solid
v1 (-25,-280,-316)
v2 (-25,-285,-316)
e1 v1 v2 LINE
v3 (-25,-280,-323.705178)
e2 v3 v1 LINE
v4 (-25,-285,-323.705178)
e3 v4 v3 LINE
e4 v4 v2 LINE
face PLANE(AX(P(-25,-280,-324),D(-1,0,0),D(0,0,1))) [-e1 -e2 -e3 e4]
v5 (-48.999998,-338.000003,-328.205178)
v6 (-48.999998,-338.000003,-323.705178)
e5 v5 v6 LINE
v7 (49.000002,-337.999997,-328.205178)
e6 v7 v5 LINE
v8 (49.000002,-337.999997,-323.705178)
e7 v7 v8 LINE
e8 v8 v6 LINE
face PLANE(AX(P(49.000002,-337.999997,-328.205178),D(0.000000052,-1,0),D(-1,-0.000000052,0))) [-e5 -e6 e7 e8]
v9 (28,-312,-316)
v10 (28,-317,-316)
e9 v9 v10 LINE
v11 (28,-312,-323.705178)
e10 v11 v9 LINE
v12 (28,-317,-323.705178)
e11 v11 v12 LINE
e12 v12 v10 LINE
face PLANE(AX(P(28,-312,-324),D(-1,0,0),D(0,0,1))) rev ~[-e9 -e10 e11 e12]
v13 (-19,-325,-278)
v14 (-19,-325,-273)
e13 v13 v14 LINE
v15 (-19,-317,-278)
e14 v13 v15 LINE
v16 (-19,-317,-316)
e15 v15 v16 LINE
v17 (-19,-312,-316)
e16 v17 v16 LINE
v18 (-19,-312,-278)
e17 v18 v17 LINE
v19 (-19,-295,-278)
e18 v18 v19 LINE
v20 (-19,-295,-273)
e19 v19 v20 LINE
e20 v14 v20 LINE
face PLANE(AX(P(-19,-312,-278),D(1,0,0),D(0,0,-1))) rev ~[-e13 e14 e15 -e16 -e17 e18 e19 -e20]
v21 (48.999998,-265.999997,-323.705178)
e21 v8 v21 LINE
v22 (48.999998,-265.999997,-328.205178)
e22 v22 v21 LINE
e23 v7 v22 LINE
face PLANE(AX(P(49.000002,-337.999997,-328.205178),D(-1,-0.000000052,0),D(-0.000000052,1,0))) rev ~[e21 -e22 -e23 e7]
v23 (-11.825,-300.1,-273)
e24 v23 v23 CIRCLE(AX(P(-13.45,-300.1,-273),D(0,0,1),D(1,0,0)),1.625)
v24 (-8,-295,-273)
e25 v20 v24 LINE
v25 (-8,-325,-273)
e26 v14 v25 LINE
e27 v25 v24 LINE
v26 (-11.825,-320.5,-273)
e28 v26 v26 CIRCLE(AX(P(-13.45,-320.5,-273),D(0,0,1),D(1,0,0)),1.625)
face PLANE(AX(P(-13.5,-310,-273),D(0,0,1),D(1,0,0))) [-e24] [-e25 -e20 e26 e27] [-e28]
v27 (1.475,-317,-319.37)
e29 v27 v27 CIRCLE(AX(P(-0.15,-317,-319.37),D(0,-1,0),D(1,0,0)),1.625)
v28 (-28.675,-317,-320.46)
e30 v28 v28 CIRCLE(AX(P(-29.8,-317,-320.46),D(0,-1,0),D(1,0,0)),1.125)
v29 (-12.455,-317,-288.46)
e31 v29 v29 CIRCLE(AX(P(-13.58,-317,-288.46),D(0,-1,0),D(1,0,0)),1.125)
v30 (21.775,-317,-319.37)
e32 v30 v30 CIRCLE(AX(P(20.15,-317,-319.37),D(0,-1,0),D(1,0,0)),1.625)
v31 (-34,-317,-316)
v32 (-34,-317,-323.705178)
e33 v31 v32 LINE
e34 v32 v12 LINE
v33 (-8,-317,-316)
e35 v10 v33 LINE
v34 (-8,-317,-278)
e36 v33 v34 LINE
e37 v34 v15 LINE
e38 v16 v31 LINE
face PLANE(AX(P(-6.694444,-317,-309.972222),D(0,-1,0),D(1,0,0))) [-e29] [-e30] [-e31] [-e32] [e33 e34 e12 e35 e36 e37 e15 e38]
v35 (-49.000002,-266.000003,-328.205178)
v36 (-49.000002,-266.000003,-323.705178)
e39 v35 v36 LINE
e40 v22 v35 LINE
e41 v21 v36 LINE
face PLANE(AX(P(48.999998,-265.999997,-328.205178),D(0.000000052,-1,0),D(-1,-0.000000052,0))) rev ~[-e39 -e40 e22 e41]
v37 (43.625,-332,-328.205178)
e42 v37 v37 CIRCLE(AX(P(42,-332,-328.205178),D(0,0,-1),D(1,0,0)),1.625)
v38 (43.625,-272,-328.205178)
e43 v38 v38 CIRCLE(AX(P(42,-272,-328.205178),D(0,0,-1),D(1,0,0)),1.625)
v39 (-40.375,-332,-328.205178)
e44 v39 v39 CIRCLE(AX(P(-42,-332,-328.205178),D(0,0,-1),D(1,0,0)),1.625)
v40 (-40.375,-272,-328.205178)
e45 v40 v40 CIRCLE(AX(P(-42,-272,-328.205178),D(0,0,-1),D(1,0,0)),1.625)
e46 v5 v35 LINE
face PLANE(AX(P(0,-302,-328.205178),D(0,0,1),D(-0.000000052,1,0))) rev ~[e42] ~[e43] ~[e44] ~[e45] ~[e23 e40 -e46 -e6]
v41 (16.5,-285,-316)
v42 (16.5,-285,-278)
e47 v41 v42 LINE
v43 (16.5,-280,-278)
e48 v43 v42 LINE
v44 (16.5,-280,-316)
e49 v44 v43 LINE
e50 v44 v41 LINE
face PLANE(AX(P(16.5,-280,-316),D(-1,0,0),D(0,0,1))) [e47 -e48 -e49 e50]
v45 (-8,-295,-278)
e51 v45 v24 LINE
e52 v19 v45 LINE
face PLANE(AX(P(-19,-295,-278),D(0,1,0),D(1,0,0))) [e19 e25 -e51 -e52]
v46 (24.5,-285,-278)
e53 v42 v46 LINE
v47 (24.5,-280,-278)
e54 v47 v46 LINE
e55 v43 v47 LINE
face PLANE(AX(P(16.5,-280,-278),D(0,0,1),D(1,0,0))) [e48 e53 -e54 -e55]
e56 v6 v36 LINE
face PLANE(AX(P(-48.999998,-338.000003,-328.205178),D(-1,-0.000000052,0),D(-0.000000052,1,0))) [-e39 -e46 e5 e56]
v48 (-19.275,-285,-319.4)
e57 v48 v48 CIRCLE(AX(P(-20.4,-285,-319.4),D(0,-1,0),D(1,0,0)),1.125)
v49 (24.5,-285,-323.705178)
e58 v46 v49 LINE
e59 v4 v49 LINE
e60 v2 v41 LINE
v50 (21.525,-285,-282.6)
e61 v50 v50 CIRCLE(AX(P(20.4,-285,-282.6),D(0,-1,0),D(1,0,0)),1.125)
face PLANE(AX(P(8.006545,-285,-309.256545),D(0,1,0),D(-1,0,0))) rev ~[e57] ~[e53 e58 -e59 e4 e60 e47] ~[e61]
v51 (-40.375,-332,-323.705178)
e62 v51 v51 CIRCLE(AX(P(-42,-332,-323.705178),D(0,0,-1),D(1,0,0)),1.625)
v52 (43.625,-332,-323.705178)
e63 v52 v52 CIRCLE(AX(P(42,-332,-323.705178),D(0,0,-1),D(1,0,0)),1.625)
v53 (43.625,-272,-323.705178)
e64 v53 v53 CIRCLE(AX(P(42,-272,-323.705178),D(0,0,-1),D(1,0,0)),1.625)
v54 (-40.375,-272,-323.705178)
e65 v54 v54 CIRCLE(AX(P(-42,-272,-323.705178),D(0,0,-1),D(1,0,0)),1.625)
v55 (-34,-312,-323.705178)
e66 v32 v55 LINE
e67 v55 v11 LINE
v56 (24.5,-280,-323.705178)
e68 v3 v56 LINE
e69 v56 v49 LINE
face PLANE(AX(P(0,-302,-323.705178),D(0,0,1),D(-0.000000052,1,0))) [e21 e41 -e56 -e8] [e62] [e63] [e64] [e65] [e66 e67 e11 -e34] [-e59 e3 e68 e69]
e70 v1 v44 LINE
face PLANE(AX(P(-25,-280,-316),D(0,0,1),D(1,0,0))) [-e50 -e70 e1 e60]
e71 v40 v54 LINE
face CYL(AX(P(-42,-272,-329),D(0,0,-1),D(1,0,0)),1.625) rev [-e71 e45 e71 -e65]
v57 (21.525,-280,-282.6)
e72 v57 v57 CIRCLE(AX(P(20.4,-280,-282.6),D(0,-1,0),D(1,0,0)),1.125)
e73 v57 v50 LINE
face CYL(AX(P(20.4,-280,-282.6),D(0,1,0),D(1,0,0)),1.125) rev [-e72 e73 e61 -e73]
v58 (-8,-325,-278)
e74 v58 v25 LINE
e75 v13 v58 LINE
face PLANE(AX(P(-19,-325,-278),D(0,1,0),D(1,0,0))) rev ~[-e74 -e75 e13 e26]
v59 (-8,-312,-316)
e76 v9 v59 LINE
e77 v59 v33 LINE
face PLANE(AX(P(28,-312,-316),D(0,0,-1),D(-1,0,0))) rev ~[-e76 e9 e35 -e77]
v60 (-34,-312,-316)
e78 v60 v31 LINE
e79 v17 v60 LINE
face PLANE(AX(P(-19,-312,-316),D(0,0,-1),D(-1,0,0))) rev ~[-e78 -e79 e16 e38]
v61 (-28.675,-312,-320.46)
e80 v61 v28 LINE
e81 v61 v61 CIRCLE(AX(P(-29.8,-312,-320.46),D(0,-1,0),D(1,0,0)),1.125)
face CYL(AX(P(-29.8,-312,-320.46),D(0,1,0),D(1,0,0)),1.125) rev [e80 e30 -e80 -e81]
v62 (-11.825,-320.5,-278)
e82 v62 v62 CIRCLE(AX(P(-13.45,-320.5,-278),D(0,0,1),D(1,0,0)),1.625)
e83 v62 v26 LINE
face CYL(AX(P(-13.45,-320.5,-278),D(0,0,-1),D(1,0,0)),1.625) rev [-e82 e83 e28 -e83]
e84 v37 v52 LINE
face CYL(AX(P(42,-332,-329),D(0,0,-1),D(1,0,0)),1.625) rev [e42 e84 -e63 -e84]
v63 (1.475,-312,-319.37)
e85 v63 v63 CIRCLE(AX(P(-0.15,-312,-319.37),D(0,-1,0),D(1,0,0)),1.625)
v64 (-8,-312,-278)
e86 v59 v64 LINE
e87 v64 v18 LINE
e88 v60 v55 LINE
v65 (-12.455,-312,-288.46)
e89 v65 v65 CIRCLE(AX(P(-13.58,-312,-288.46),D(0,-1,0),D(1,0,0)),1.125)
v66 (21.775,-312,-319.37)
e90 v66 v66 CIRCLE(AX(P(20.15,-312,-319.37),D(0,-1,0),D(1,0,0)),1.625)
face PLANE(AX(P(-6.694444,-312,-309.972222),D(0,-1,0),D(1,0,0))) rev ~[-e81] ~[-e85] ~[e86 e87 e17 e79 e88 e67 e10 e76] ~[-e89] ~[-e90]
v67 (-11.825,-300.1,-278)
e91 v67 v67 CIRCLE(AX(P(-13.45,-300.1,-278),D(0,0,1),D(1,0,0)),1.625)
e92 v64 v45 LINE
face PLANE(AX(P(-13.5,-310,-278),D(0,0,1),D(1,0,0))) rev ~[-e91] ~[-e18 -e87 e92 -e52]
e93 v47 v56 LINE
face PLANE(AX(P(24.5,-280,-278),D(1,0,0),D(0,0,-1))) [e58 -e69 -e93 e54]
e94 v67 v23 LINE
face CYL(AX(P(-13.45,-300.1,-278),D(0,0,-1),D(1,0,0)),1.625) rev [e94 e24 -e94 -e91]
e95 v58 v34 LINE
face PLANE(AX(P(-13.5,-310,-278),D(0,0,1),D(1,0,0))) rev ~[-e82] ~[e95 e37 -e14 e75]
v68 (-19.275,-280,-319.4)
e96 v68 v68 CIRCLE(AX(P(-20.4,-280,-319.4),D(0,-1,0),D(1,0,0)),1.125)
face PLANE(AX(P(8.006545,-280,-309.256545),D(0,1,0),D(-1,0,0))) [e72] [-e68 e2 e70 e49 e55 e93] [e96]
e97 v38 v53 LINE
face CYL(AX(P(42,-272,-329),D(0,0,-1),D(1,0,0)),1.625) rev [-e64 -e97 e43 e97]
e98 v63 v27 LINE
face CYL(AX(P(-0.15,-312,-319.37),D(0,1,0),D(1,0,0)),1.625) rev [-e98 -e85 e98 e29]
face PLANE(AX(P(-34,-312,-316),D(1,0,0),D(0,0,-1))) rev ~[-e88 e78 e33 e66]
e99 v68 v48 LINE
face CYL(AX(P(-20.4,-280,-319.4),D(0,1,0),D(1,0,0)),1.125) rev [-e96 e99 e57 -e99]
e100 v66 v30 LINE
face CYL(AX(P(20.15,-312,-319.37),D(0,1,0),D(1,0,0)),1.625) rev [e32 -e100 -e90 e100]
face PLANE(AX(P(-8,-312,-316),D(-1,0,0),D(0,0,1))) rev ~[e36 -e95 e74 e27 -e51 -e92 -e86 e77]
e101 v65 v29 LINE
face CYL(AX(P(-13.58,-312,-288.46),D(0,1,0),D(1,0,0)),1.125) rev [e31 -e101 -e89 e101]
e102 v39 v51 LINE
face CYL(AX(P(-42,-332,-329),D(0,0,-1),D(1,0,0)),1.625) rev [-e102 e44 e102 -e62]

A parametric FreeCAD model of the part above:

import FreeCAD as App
import Part
import Sketcher
from FreeCAD import Vector
Q = App.Units.Quantity


def add_polygon(sketch, points):
    """Adds a closed chain of lines whose ends are joined by coincident constraints."""
    first, n = sketch.GeometryCount, len(points)
    for a, b in zip(points, points[1:] + points[:1]):
        sketch.addGeometry(Part.LineSegment(App.Vector(*a, 0), App.Vector(*b, 0)), False)
    for i in range(n):
        sketch.addConstraint(Sketcher.Constraint("Coincident", first + i, 2, first + (i + 1) % n, 1))

doc = App.newDocument("Part")
params = doc.addObject("Spreadsheet::Sheet", "Params")
for row, (alias, value) in enumerate([
    ("sketch1_diameter", "3.25 mm"),
    ("pad1_length", "20 mm"),
    ("sketch2_diameter", "3.25 mm"),
    ("sketch2_width", "11 mm"),
    ("sketch2_height", "30 mm"),
    ("pad2_length", "5 mm"),
    ("sketch3_width", "72 mm"),
    ("sketch3_height", "98 mm"),
    ("pad3_length", "4.5 mm"),
    ("sketch4_diameter", "2.25 mm"),
    ("sketch4_diameter2", "3.25 mm"),
    ("sketch4_width", "36 mm"),
    ("sketch4_width2", "11 mm"),
    ("sketch4_width3", "15 mm"),
    ("pad4_length", "5 mm"),
    ("sketch5_diameter", "2.25 mm"),
    ("sketch5_width", "8 mm"),
    ("sketch5_height", "46 mm"),
    ("sketch5_width2", "49.5 mm"),
    ("pad5_length", "5 mm"),
], start=1):
    params.set(f"A{row}", alias)
    params.set(f"B{row}", "=" + value)
    params.setAlias(f"B{row}", alias)

body = doc.addObject("PartDesign::Body", "Body")
body.AllowCompound = True

# Sketch on XY plane
sketch1 = body.newObject("Sketcher::SketchObject", "Sketch")
sketch1.AttachmentSupport = (doc.getObject("XY_Plane"), [""])
sketch1.MapMode = "FlatFace"
sketch1.addGeometry([
    Part.Circle(Vector(-42, -332, 0), Vector(0, 0, 1), 1.6),
    Part.Circle(Vector(42, -332, 0), Vector(0, 0, 1), 1.6),
    Part.Circle(Vector(42, -272, 0), Vector(0, 0, 1), 1.6),
    Part.Circle(Vector(-42, -272, 0), Vector(0, 0, 1), 1.6),
], False)
sketch1.addConstraint([
    Sketcher.Constraint("Equal", 0, 1),
    Sketcher.Constraint("Equal", 1, 2),
    Sketcher.Constraint("Equal", 2, 3),
    Sketcher.Constraint("Symmetric", 0, 3, 1, 3, -2),
    Sketcher.Constraint("Symmetric", 2, 3, 3, 3, -2),
    Sketcher.Constraint("Vertical", 1, 3, 2, 3),
    Sketcher.Constraint("Diameter", 0, Q("3.25 mm")),
    Sketcher.Constraint("DistanceX", 0, 3, -1, 1, Q("42 mm")),
    Sketcher.Constraint("DistanceY", 0, 3, -1, 1, Q("332 mm")),
    Sketcher.Constraint("DistanceY", 2, 3, -1, 1, Q("272 mm")),
])
sketch1.setExpression("Constraints[6]", "Params.sketch1_diameter")
pad1 = body.newObject("PartDesign::Pad", "Pad")
pad1.Profile = sketch1
pad1.setExpression("Length", "Params.pad1_length")
body2 = doc.addObject("PartDesign::Body", "Body001")
body2.AllowCompound = True
doc.recompute()

body.Placement = App.Placement(Vector(0, 0, -329), App.Rotation(Vector(0, 0, 1), 0))
boolean = body2.newObject("PartDesign::Boolean", "Boolean")
boolean.Type = "Fuse"
boolean.addObjects([body])
body3 = doc.addObject("PartDesign::Body", "Body002")

# Sketch on XY plane
sketch2 = body3.newObject("Sketcher::SketchObject", "Sketch001")
sketch2.AttachmentSupport = (doc.getObject("XY_Plane002"), [""])
sketch2.MapMode = "FlatFace"
add_polygon(sketch2, [(-19, -295), (-19, -325), (-8, -325), (-8, -295)])  # lines 0-3
sketch2.addGeometry(Part.Circle(Vector(-13.4, -320.5, 0), Vector(0, 0, 1), 1.6), False)  # 4
sketch2.addGeometry(Part.Circle(Vector(-13.4, -300.1, 0), Vector(0, 0, 1), 1.6), False)  # 5
sketch2.addConstraint([
    Sketcher.Constraint("Vertical", 0),
    Sketcher.Constraint("Horizontal", 1),
    Sketcher.Constraint("Vertical", 2),
    Sketcher.Constraint("Horizontal", 3),
    Sketcher.Constraint("Equal", 4, 5),
    Sketcher.Constraint("Vertical", 4, 3, 5, 3),
    Sketcher.Constraint("Diameter", 4, Q("3.25 mm")),
    Sketcher.Constraint("DistanceX", 1, 1, 1, 2, Q("11 mm")),
    Sketcher.Constraint("DistanceY", 0, 2, 0, 1, Q("30 mm")),
    Sketcher.Constraint("DistanceX", 0, 2, -1, 1, Q("19 mm")),
    Sketcher.Constraint("DistanceY", 0, 2, -1, 1, Q("325 mm")),
    Sketcher.Constraint("DistanceY", 4, 3, -1, 1, Q("320.5 mm")),
    Sketcher.Constraint("DistanceY", 5, 3, -1, 1, Q("300.1 mm")),
    Sketcher.Constraint("DistanceX", 4, 3, -1, 1, Q("13.45 mm")),
])
sketch2.setExpression("Constraints[10]", "Params.sketch2_diameter")
sketch2.setExpression("Constraints[11]", "Params.sketch2_width")
sketch2.setExpression("Constraints[12]", "Params.sketch2_height")
pad2 = body3.newObject("PartDesign::Pad", "Pad001")
pad2.Profile = sketch2
pad2.setExpression("Length", "Params.pad2_length")
body4 = doc.addObject("PartDesign::Body", "Body003")
doc.recompute()

body3.Placement = App.Placement(Vector(0, 0, -278), App.Rotation(Vector(0, 0, 1), 0))
boolean2 = body4.newObject("PartDesign::Boolean", "Boolean001")
boolean2.Type = "Fuse"
boolean2.addObjects([body3])
body5 = doc.addObject("PartDesign::Body", "Body004")

# Sketch on XY plane
sketch3 = body5.newObject("Sketcher::SketchObject", "Sketch002")
sketch3.AttachmentSupport = (doc.getObject("XY_Plane004"), [""])
sketch3.MapMode = "FlatFace"
add_polygon(sketch3, [(-36, 49), (-36, -49), (36, -49), (36, 49)])  # lines 0-3
sketch3.addConstraint([
    Sketcher.Constraint("Vertical", 0),
    Sketcher.Constraint("Horizontal", 1),
    Sketcher.Constraint("Vertical", 2),
    Sketcher.Constraint("Horizontal", 3),
    Sketcher.Constraint("Symmetric", 0, 2, 2, 2, -1, 1),
    Sketcher.Constraint("DistanceX", 1, 1, 1, 2, Q("72 mm")),
    Sketcher.Constraint("DistanceY", 0, 2, 0, 1, Q("98 mm")),
])
sketch3.setExpression("Constraints[9]", "Params.sketch3_width")
sketch3.setExpression("Constraints[10]", "Params.sketch3_height")
pad3 = body5.newObject("PartDesign::Pad", "Pad002")
pad3.Profile = sketch3
pad3.setExpression("Length", "Params.pad3_length")
body6 = doc.addObject("PartDesign::Body", "Body005")
doc.recompute()

body5.Placement = App.Placement(Vector(0, 0, 0), App.Rotation(Vector(0, 0, 1), 0))
boolean3 = body6.newObject("PartDesign::Boolean", "Boolean002")
boolean3.Type = "Fuse"
boolean3.addObjects([body5])
body7 = doc.addObject("PartDesign::Body", "Body006")
doc.recompute()

body6.Placement = App.Placement(Vector(0, 0, 0), App.Rotation(Vector(0, 0, 1), 0))
boolean4 = body7.newObject("PartDesign::Boolean", "Boolean003")
boolean4.Type = "Fuse"
boolean4.addObjects([body6])
body8 = doc.addObject("PartDesign::Body", "Body007")
doc.recompute()

body7.Placement = App.Placement(Vector(0, -302, -283.455178), App.Rotation(Vector(0, 0, 1), 90.000003))
boolean5 = body8.newObject("PartDesign::Boolean", "Boolean004")
boolean5.Type = "Fuse"
boolean5.addObjects([body7])
body9 = doc.addObject("PartDesign::Body", "Body008")
doc.recompute()

body8.Placement = App.Placement(Vector(0, 0, -44.75), App.Rotation(Vector(0, 0, 1), 0))
boolean6 = body9.newObject("PartDesign::Boolean", "Boolean005")
boolean6.Type = "Fuse"
boolean6.addObjects([body8])
body10 = doc.addObject("PartDesign::Body", "Body009")

# Sketch on XZ plane
sketch4 = body10.newObject("Sketcher::SketchObject", "Sketch003")
sketch4.AttachmentSupport = (doc.getObject("XZ_Plane009"), [""])
sketch4.MapMode = "FlatFace"
add_polygon(sketch4, [(28, -324), (28, -316), (-8, -316), (-8, -278), (-19, -278), (-19, -316), (-34, -316), (-34, -324)])  # lines 0-7
sketch4.addGeometry(Part.Circle(Vector(-29.8, -320.5, 0), Vector(0, 0, 1), 1.1), False)  # 8
sketch4.addGeometry(Part.Circle(Vector(-0.1, -319.4, 0), Vector(0, 0, 1), 1.6), False)  # 9
sketch4.addGeometry(Part.Circle(Vector(20.1, -319.4, 0), Vector(0, 0, 1), 1.6), False)  # 10
sketch4.addGeometry(Part.Circle(Vector(-13.6, -288.5, 0), Vector(0, 0, 1), 1.1), False)  # 11
sketch4.addConstraint([
    Sketcher.Constraint("Vertical", 0),
    Sketcher.Constraint("Horizontal", 1),
    Sketcher.Constraint("Vertical", 2),
    Sketcher.Constraint("Horizontal", 3),
    Sketcher.Constraint("Vertical", 4),
    Sketcher.Constraint("Horizontal", 5),
    Sketcher.Constraint("Vertical", 6),
    Sketcher.Constraint("Horizontal", 7),
    Sketcher.Constraint("Equal", 9, 10),
    Sketcher.Constraint("Equal", 8, 11),
    Sketcher.Constraint("Horizontal", 9, 3, 10, 3),
    Sketcher.Constraint("Horizontal", 1, 2, 4, 2),
    Sketcher.Constraint("Diameter", 8, Q("2.25 mm")),
    Sketcher.Constraint("Diameter", 9, Q("3.25 mm")),
    Sketcher.Constraint("DistanceX", 1, 2, 1, 1, Q("36 mm")),
    Sketcher.Constraint("DistanceX", 3, 2, 3, 1, Q("11 mm")),
    Sketcher.Constraint("DistanceX", 5, 2, 5, 1, Q("15 mm")),
    Sketcher.Constraint("DistanceY", 0, 1, 0, 2, Q("8 mm")),
    Sketcher.Constraint("DistanceY", 2, 1, 2, 2, Q("38 mm")),
    Sketcher.Constraint("DistanceX", -1, 1, 0, 2, Q("28 mm")),
    Sketcher.Constraint("DistanceY", 0, 2, -1, 1, Q("316 mm")),
    Sketcher.Constraint("DistanceY", 8, 3, 11, 3, Q("32 mm")),
    Sketcher.Constraint("DistanceX", 8, 3, -1, 1, Q("29.8 mm")),
    Sketcher.Constraint("DistanceX", 9, 3, 10, 3, Q("20.3 mm")),
    Sketcher.Constraint("DistanceY", 8, 3, -1, 1, Q("320.46 mm")),
    Sketcher.Constraint("DistanceX", 9, 3, -1, 1, Q("0.15 mm")),
    Sketcher.Constraint("DistanceY", 9, 3, -1, 1, Q("319.37 mm")),
    Sketcher.Constraint("DistanceX", 11, 3, -1, 1, Q("13.58 mm")),
])
sketch4.setExpression("Constraints[20]", "Params.sketch4_diameter")
sketch4.setExpression("Constraints[21]", "Params.sketch4_diameter2")
sketch4.setExpression("Constraints[22]", "Params.sketch4_width")
sketch4.setExpression("Constraints[23]", "Params.sketch4_width2")
sketch4.setExpression("Constraints[24]", "Params.sketch4_width3")
pad4 = body10.newObject("PartDesign::Pad", "Pad003")
pad4.Profile = sketch4
pad4.setExpression("Length", "Params.pad4_length")
body11 = doc.addObject("PartDesign::Body", "Body010")
doc.recompute()

body10.Placement = App.Placement(Vector(0, -312, 0), App.Rotation(Vector(0, 0, 1), 0))
boolean7 = body11.newObject("PartDesign::Boolean", "Boolean006")
boolean7.Type = "Fuse"
boolean7.addObjects([body10])
body12 = doc.addObject("PartDesign::Body", "Body011")

# Sketch on XZ plane
sketch5 = body12.newObject("Sketcher::SketchObject", "Sketch004")
sketch5.AttachmentSupport = (doc.getObject("XZ_Plane011"), [""])
sketch5.MapMode = "FlatFace"
sketch5.AttachmentOffset = App.Placement(Vector(0, 0, 312), App.Rotation())
add_polygon(sketch5, [(-25, -316), (-25, -324), (24.5, -324), (24.5, -278), (16.5, -278), (16.5, -316)])  # lines 0-5
sketch5.addGeometry(Part.Circle(Vector(-20.4, -319.4, 0), Vector(0, 0, 1), 1.1), False)  # 6
sketch5.addGeometry(Part.Circle(Vector(20.4, -282.6, 0), Vector(0, 0, 1), 1.1), False)  # 7
sketch5.addConstraint([
    Sketcher.Constraint("Vertical", 0),
    Sketcher.Constraint("Horizontal", 1),
    Sketcher.Constraint("Vertical", 2),
    Sketcher.Constraint("Horizontal", 3),
    Sketcher.Constraint("Vertical", 4),
    Sketcher.Constraint("Horizontal", 5),
    Sketcher.Constraint("Equal", 6, 7),
    Sketcher.Constraint("Equal", 3, 0),
    Sketcher.Constraint("Diameter", 6, Q("2.25 mm")),
    Sketcher.Constraint("DistanceX", 3, 2, 3, 1, Q("8 mm")),
    Sketcher.Constraint("DistanceY", 2, 1, 2, 2, Q("46 mm")),
    Sketcher.Constraint("DistanceX", 1, 1, 1, 2, Q("49.5 mm")),
    Sketcher.Constraint("DistanceX", 0, 2, -1, 1, Q("25 mm")),
    Sketcher.Constraint("DistanceY", 0, 2, -1, 1, Q("324 mm")),
    Sketcher.Constraint("DistanceX", 6, 3, -1, 1, Q("20.4 mm")),
    Sketcher.Constraint("DistanceY", 6, 3, -1, 1, Q("319.4 mm")),
    Sketcher.Constraint("DistanceX", -1, 1, 7, 3, Q("20.4 mm")),
    Sketcher.Constraint("DistanceY", 7, 3, -1, 1, Q("282.6 mm")),
])
sketch5.setExpression("Constraints[14]", "Params.sketch5_diameter")
sketch5.setExpression("Constraints[15]", "Params.sketch5_width")
sketch5.setExpression("Constraints[16]", "Params.sketch5_height")
sketch5.setExpression("Constraints[17]", "Params.sketch5_width2")
pad5 = body12.newObject("PartDesign::Pad", "Pad004")
pad5.Profile = sketch5
pad5.setExpression("Length", "Params.pad5_length")
body13 = doc.addObject("PartDesign::Body", "Body012")
body13.AllowCompound = True
doc.recompute()

body12.Placement = App.Placement(Vector(0, 32, 0), App.Rotation(Vector(0, 0, 1), 0))
boolean8 = body13.newObject("PartDesign::Boolean", "Boolean007")
boolean8.Type = "Fuse"
boolean8.addObjects([body12])
doc.recompute()

boolean9 = body13.newObject("PartDesign::Boolean", "Boolean008")
boolean9.Type = "Fuse"
boolean9.addObjects([body4])
doc.recompute()

boolean10 = body13.newObject("PartDesign::Boolean", "Boolean009")
boolean10.Type = "Fuse"
boolean10.addObjects([body9])
doc.recompute()

boolean11 = body13.newObject("PartDesign::Boolean", "Boolean010")
boolean11.Type = "Fuse"
boolean11.addObjects([body11])
doc.recompute()

boolean12 = body13.newObject("PartDesign::Boolean", "Boolean011")
boolean12.Type = "Cut"
boolean12.addObjects([body2])

doc.recompute()
